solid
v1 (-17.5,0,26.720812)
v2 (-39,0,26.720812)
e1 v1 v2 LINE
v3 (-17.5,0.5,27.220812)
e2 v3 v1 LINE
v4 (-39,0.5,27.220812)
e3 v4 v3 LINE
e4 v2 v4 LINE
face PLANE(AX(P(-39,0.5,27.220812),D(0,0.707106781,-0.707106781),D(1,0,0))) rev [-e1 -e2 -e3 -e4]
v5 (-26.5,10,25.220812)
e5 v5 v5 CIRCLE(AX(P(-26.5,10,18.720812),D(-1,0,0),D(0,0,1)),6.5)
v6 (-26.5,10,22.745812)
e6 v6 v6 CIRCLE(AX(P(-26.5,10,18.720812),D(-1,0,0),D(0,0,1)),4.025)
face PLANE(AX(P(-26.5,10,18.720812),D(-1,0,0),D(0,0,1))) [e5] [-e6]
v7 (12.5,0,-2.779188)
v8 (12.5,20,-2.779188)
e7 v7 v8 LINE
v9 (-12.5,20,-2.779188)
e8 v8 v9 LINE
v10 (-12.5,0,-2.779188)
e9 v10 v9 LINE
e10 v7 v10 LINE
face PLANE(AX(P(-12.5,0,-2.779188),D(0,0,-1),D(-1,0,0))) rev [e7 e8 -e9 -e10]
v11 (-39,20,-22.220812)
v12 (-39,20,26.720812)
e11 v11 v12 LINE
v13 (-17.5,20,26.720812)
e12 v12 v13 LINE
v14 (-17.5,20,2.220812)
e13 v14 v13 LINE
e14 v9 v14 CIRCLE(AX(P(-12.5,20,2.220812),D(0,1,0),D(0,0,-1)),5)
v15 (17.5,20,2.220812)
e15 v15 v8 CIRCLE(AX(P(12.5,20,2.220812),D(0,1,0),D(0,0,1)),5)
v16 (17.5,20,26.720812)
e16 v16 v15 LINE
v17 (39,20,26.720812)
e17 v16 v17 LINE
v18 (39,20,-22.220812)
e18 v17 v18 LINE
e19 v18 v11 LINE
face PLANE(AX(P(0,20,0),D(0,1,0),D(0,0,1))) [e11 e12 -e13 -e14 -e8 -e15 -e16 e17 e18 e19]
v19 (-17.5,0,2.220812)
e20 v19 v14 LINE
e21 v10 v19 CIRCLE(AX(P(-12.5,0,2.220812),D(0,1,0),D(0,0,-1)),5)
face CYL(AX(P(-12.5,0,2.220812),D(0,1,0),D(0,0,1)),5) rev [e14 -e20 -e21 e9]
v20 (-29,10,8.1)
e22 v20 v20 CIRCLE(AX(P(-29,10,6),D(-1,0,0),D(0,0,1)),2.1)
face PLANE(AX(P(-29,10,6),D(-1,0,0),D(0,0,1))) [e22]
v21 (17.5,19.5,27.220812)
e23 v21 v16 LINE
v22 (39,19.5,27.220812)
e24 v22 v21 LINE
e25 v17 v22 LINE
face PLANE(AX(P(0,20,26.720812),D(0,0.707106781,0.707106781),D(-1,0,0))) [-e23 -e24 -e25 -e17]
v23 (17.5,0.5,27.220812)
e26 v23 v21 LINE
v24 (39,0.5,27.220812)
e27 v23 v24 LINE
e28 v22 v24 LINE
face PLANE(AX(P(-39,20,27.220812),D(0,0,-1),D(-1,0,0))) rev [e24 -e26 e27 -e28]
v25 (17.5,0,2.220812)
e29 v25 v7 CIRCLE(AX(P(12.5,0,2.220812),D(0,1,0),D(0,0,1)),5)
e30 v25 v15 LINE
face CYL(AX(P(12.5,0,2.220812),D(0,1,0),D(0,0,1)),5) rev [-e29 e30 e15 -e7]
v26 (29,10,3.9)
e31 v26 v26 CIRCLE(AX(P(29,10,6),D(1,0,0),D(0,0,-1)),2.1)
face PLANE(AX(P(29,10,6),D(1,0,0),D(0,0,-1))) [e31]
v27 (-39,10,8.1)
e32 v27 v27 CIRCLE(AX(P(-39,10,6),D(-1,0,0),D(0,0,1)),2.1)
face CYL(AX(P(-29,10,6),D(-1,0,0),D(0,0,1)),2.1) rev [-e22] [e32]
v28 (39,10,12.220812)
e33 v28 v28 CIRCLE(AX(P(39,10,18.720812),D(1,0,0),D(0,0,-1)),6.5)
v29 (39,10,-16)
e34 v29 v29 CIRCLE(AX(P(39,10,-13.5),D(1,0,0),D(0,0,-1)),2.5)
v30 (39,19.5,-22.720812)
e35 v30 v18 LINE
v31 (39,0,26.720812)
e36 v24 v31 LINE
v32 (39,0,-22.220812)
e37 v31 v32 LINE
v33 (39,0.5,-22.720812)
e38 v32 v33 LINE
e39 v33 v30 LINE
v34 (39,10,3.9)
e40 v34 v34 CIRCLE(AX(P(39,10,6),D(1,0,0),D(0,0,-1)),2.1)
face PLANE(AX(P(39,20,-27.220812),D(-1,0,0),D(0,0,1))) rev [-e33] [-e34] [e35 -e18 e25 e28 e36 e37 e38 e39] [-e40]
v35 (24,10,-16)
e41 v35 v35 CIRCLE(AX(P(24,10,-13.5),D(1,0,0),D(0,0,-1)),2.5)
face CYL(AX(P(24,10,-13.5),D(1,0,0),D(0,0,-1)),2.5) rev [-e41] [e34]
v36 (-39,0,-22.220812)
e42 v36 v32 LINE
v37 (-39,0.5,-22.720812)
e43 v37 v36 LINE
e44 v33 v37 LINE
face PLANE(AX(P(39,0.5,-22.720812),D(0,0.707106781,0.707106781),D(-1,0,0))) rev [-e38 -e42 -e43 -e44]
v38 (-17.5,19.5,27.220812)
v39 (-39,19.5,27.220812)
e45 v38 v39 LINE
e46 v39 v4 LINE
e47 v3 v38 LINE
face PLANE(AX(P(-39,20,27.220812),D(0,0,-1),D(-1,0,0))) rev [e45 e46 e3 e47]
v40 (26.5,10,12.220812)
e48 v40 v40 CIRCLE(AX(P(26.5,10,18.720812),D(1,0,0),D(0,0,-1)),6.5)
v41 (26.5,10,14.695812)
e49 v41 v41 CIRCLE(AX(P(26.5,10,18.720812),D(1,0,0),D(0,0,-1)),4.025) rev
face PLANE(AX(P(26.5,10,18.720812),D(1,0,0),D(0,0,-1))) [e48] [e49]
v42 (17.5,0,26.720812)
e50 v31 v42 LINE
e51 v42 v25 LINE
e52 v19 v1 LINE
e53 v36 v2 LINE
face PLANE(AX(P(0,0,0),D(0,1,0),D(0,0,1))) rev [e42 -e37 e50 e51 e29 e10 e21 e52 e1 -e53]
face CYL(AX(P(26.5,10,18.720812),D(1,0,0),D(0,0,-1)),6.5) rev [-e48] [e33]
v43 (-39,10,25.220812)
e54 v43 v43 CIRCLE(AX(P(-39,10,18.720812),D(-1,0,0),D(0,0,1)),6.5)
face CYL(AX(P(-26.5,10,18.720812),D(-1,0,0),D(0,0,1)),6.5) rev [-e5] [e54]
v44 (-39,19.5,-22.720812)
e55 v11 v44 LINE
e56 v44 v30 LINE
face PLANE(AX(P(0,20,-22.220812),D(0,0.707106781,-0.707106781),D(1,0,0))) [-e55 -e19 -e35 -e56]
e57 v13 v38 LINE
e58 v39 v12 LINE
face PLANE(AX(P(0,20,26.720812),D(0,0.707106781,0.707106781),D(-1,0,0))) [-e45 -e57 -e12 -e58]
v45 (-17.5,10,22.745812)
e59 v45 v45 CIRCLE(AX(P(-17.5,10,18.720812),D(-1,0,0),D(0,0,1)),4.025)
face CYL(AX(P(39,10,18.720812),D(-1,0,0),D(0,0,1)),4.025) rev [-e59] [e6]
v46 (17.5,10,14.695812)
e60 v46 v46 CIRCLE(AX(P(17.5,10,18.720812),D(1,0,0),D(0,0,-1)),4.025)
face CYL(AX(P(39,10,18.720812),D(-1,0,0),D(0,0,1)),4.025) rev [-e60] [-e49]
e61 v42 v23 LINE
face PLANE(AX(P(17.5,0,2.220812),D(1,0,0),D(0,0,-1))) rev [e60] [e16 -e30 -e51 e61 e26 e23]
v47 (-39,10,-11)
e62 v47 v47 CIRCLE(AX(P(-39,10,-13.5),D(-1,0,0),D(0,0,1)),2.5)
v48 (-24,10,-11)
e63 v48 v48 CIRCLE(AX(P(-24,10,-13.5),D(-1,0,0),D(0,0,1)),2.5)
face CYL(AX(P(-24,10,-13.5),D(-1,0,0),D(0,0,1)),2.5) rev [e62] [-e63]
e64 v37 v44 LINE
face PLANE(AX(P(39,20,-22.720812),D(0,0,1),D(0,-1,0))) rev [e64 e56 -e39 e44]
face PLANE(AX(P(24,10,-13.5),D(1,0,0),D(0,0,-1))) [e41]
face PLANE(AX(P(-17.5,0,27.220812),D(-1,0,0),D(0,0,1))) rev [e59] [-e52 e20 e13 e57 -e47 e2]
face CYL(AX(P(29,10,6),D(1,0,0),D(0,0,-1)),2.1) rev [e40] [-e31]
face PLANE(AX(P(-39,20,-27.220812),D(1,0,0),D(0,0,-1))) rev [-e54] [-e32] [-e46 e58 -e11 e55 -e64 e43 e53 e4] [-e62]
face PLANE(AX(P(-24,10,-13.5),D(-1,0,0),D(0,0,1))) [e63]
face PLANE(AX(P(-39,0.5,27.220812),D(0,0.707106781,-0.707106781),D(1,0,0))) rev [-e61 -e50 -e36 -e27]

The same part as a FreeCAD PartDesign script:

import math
import FreeCAD as App
import Part
import Sketcher


def edges_at(feature, points):
    """Names of the edges that pass closest to the given points."""
    edges = feature.Shape.Edges
    near = lambda p: min(range(len(edges)), key=lambda i: edges[i].distToShape(Part.Vertex(*p))[0])
    return sorted({f"Edge{near(p) + 1}" for p in points})


def add_polygon(sketch, points):
    """Adds a closed chain of lines whose ends are joined by coincident constraints."""
    first, n = sketch.GeometryCount, len(points)
    for a, b in zip(points, points[1:] + points[:1]):
        sketch.addGeometry(Part.LineSegment(App.Vector(*a, 0), App.Vector(*b, 0)), False)
    for i in range(n):
        sketch.addConstraint(Sketcher.Constraint("Coincident", first + i, 2, first + (i + 1) % n, 1))

doc = App.newDocument("Part")
body = doc.addObject("PartDesign::Body", "Body")

sketch1 = body.newObject("Sketcher::SketchObject", "Sketch")
sketch1.AttachmentSupport = (doc.getObject("XZ_Plane"), [""])
sketch1.MapMode = "FlatFace"
add_polygon(sketch1, [(-39, -27), (-39, 27), (39, 27), (39, -27)])
sketch1.addConstraint([
    Sketcher.Constraint("Vertical", 0),
    Sketcher.Constraint("Horizontal", 1),
    Sketcher.Constraint("Vertical", 2),
    Sketcher.Constraint("Horizontal", 3),
    Sketcher.Constraint("Symmetric", 0, 2, 2, 2, -1, 1),
    Sketcher.Constraint("DistanceX", 1, 1, 1, 2, 78.0),
    Sketcher.Constraint("DistanceY", 0, 1, 0, 2, 54.441624),
])
pad1 = body.newObject("PartDesign::Pad", "Pad")
pad1.Profile = sketch1
pad1.Length = 20
pad1.Reversed = True

sketch2 = body.newObject("Sketcher::SketchObject", "Sketch001")
sketch2.AttachmentSupport = (doc.getObject("XZ_Plane"), [""])
sketch2.MapMode = "FlatFace"
sketch2.AttachmentOffset = App.Placement(App.Vector(0, 0, -20), App.Rotation())
sketch2.addGeometry([
    Part.LineSegment(App.Vector(-18, 27, 0), App.Vector(18, 27, 0)),
    Part.LineSegment(App.Vector(18, 27, 0), App.Vector(18, 2, 0)),
    Part.ArcOfCircle(Part.Circle(App.Vector(12, 2, 0), App.Vector(0, 0, 1), 5), math.radians(-90), math.radians(0)),
    Part.LineSegment(App.Vector(12, -3, 0), App.Vector(-12, -3, 0)),
    Part.ArcOfCircle(Part.Circle(App.Vector(-12, 2, 0), App.Vector(0, 0, 1), 5), math.radians(180), math.radians(270)),
    Part.LineSegment(App.Vector(-18, 2, 0), App.Vector(-18, 27, 0)),
], False)
sketch2.addConstraint([
    Sketcher.Constraint("Coincident", 0, 2, 1, 1),
    Sketcher.Constraint("Tangent", 1, 2, 2, 2),
    Sketcher.Constraint("Tangent", 2, 1, 3, 1),
    Sketcher.Constraint("Tangent", 3, 2, 4, 2),
    Sketcher.Constraint("Tangent", 4, 1, 5, 1),
    Sketcher.Constraint("Coincident", 5, 2, 0, 1),
    Sketcher.Constraint("Horizontal", 0),
    Sketcher.Constraint("Vertical", 1),
    Sketcher.Constraint("Horizontal", 3),
    Sketcher.Constraint("Vertical", 5),
    Sketcher.Constraint("Equal", 2, 4),
    Sketcher.Constraint("Equal", 3, 1),
    Sketcher.Constraint("Radius", 2, 5.0),
    Sketcher.Constraint("DistanceX", 0, 1, 0, 2, 35.0),
    Sketcher.Constraint("DistanceX", -1, 1, 2, 3, 12.5),
    Sketcher.Constraint("DistanceY", -1, 1, 2, 3, 2.220812),
])
pocket1 = body.newObject("PartDesign::Pocket", "Pocket")
pocket1.Profile = sketch2
pocket1.Type = "ThroughAll"
pocket1.Reversed = True

sketch3 = body.newObject("Sketcher::SketchObject", "Sketch002")
sketch3.AttachmentSupport = (doc.getObject("YZ_Plane"), [""])
sketch3.MapMode = "FlatFace"
sketch3.AttachmentOffset = App.Placement(App.Vector(0, 0, -39), App.Rotation())
sketch3.addGeometry(Part.Circle(App.Vector(10, -13.5, 0), App.Vector(0, 0, 1), 2.5), False)
sketch3.addConstraint([
    Sketcher.Constraint("Diameter", 0, 5.0),
    Sketcher.Constraint("DistanceX", -1, 1, 0, 3, 10.0),
    Sketcher.Constraint("DistanceY", 0, 3, -1, 1, 13.5),
])
pocket2 = body.newObject("PartDesign::Pocket", "Pocket001")
pocket2.Profile = sketch3
pocket2.Length = 15
pocket2.Reversed = True

sketch4 = body.newObject("Sketcher::SketchObject", "Sketch003")
sketch4.AttachmentSupport = (doc.getObject("YZ_Plane"), [""])
sketch4.MapMode = "FlatFace"
sketch4.AttachmentOffset = App.Placement(App.Vector(0, 0, -39), App.Rotation())
sketch4.addGeometry(Part.Circle(App.Vector(10, 6, 0), App.Vector(0, 0, 1), 2.1), False)
sketch4.addConstraint([
    Sketcher.Constraint("Diameter", 0, 4.2),
    Sketcher.Constraint("DistanceX", -1, 1, 0, 3, 10.0),
    Sketcher.Constraint("DistanceY", -1, 1, 0, 3, 6.0),
])
pocket3 = body.newObject("PartDesign::Pocket", "Pocket002")
pocket3.Profile = sketch4
pocket3.Length = 10
pocket3.Reversed = True

sketch5 = body.newObject("Sketcher::SketchObject", "Sketch004")
sketch5.AttachmentSupport = (doc.getObject("YZ_Plane"), [""])
sketch5.MapMode = "FlatFace"
sketch5.AttachmentOffset = App.Placement(App.Vector(0, 0, -39), App.Rotation())
sketch5.addGeometry(Part.Circle(App.Vector(10, 19, 0), App.Vector(0, 0, 1), 6), False)
sketch5.addConstraint([
    Sketcher.Constraint("Diameter", 0, 13.0),
    Sketcher.Constraint("DistanceX", -1, 1, 0, 3, 10.0),
    Sketcher.Constraint("DistanceY", -1, 1, 0, 3, 18.720812),
])
pocket4 = body.newObject("PartDesign::Pocket", "Pocket003")
pocket4.Profile = sketch5
pocket4.Length = 12.5
pocket4.Reversed = True

sketch6 = body.newObject("Sketcher::SketchObject", "Sketch005")
sketch6.AttachmentSupport = (doc.getObject("YZ_Plane"), [""])
sketch6.MapMode = "FlatFace"
sketch6.AttachmentOffset = App.Placement(App.Vector(0, 0, -26.5), App.Rotation())
sketch6.addGeometry(Part.Circle(App.Vector(10, 18.7, 0), App.Vector(0, 0, 1), 4), False)
sketch6.addConstraint([
    Sketcher.Constraint("Diameter", 0, 8.05),
    Sketcher.Constraint("DistanceX", -1, 1, 0, 3, 10.0),
    Sketcher.Constraint("DistanceY", -1, 1, 0, 3, 18.720812),
])
pocket5 = body.newObject("PartDesign::Pocket", "Pocket004")
pocket5.Profile = sketch6
pocket5.Type = "ThroughAll"
pocket5.Reversed = True

sketch7 = body.newObject("Sketcher::SketchObject", "Sketch006")
sketch7.AttachmentSupport = (doc.getObject("YZ_Plane"), [""])
sketch7.MapMode = "FlatFace"
sketch7.AttachmentOffset = App.Placement(App.Vector(0, 0, 26.5), App.Rotation())
sketch7.addGeometry(Part.Circle(App.Vector(10, 19, 0), App.Vector(0, 0, 1), 6), False)
sketch7.addConstraint([
    Sketcher.Constraint("Diameter", 0, 13.0),
    Sketcher.Constraint("DistanceX", -1, 1, 0, 3, 10.0),
    Sketcher.Constraint("DistanceY", -1, 1, 0, 3, 18.720812),
])
pocket6 = body.newObject("PartDesign::Pocket", "Pocket005")
pocket6.Profile = sketch7
pocket6.Length = 12.5
pocket6.Reversed = True

sketch8 = body.newObject("Sketcher::SketchObject", "Sketch007")
sketch8.AttachmentSupport = (doc.getObject("YZ_Plane"), [""])
sketch8.MapMode = "FlatFace"
sketch8.AttachmentOffset = App.Placement(App.Vector(0, 0, 24), App.Rotation())
sketch8.addGeometry(Part.Circle(App.Vector(10, -13.5, 0), App.Vector(0, 0, 1), 2.5), False)
sketch8.addConstraint([
    Sketcher.Constraint("Diameter", 0, 5.0),
    Sketcher.Constraint("DistanceX", -1, 1, 0, 3, 10.0),
    Sketcher.Constraint("DistanceY", 0, 3, -1, 1, 13.5),
])
pocket7 = body.newObject("PartDesign::Pocket", "Pocket006")
pocket7.Profile = sketch8
pocket7.Length = 15
pocket7.Reversed = True

sketch9 = body.newObject("Sketcher::SketchObject", "Sketch008")
sketch9.AttachmentSupport = (doc.getObject("YZ_Plane"), [""])
sketch9.MapMode = "FlatFace"
sketch9.AttachmentOffset = App.Placement(App.Vector(0, 0, 29), App.Rotation())
sketch9.addGeometry(Part.Circle(App.Vector(10, 6, 0), App.Vector(0, 0, 1), 2.1), False)
sketch9.addConstraint([
    Sketcher.Constraint("Diameter", 0, 4.2),
    Sketcher.Constraint("DistanceX", -1, 1, 0, 3, 10.0),
    Sketcher.Constraint("DistanceY", -1, 1, 0, 3, 6.0),
])
pocket8 = body.newObject("PartDesign::Pocket", "Pocket007")
pocket8.Profile = sketch9
pocket8.Length = 10
pocket8.Reversed = True

sketch10 = body.newObject("Sketcher::SketchObject", "Sketch009")
sketch10.AttachmentSupport = (doc.getObject("YZ_Plane"), [""])
sketch10.MapMode = "FlatFace"
sketch10.AttachmentOffset = App.Placement(App.Vector(0, 0, -39), App.Rotation())
add_polygon(sketch10, [(20, -27.2), (0, -27.2), (0, -22.7), (20, -22.7)])
sketch10.addConstraint([
    Sketcher.Constraint("Horizontal", 0),
    Sketcher.Constraint("Vertical", 1),
    Sketcher.Constraint("Horizontal", 2),
    Sketcher.Constraint("Vertical", 3),
    Sketcher.Constraint("PointOnObject", 0, 2, -2),
    Sketcher.Constraint("DistanceX", 0, 2, 0, 1, 20.0),
    Sketcher.Constraint("DistanceY", 1, 1, 1, 2, 4.5),
    Sketcher.Constraint("DistanceY", 0, 2, -1, 1, 27.220812),
])
pocket9 = body.newObject("PartDesign::Pocket", "Pocket008")
pocket9.Profile = sketch10
pocket9.Type = "ThroughAll"
pocket9.Reversed = True
doc.recompute()

chamfer = body.newObject("PartDesign::Chamfer", "Chamfer")
chamfer.Base = (pocket9, edges_at(pocket9, [
    (28.25, 0, 27.221),
    (-28.25, 20, 27.221),
    (28.25, 20, 27.221),
    (-28.25, 0, 27.221),
    (0, 20, -22.721),
    (0, 0, -22.721),
]))
chamfer.Size = 0.5

doc.recompute()
